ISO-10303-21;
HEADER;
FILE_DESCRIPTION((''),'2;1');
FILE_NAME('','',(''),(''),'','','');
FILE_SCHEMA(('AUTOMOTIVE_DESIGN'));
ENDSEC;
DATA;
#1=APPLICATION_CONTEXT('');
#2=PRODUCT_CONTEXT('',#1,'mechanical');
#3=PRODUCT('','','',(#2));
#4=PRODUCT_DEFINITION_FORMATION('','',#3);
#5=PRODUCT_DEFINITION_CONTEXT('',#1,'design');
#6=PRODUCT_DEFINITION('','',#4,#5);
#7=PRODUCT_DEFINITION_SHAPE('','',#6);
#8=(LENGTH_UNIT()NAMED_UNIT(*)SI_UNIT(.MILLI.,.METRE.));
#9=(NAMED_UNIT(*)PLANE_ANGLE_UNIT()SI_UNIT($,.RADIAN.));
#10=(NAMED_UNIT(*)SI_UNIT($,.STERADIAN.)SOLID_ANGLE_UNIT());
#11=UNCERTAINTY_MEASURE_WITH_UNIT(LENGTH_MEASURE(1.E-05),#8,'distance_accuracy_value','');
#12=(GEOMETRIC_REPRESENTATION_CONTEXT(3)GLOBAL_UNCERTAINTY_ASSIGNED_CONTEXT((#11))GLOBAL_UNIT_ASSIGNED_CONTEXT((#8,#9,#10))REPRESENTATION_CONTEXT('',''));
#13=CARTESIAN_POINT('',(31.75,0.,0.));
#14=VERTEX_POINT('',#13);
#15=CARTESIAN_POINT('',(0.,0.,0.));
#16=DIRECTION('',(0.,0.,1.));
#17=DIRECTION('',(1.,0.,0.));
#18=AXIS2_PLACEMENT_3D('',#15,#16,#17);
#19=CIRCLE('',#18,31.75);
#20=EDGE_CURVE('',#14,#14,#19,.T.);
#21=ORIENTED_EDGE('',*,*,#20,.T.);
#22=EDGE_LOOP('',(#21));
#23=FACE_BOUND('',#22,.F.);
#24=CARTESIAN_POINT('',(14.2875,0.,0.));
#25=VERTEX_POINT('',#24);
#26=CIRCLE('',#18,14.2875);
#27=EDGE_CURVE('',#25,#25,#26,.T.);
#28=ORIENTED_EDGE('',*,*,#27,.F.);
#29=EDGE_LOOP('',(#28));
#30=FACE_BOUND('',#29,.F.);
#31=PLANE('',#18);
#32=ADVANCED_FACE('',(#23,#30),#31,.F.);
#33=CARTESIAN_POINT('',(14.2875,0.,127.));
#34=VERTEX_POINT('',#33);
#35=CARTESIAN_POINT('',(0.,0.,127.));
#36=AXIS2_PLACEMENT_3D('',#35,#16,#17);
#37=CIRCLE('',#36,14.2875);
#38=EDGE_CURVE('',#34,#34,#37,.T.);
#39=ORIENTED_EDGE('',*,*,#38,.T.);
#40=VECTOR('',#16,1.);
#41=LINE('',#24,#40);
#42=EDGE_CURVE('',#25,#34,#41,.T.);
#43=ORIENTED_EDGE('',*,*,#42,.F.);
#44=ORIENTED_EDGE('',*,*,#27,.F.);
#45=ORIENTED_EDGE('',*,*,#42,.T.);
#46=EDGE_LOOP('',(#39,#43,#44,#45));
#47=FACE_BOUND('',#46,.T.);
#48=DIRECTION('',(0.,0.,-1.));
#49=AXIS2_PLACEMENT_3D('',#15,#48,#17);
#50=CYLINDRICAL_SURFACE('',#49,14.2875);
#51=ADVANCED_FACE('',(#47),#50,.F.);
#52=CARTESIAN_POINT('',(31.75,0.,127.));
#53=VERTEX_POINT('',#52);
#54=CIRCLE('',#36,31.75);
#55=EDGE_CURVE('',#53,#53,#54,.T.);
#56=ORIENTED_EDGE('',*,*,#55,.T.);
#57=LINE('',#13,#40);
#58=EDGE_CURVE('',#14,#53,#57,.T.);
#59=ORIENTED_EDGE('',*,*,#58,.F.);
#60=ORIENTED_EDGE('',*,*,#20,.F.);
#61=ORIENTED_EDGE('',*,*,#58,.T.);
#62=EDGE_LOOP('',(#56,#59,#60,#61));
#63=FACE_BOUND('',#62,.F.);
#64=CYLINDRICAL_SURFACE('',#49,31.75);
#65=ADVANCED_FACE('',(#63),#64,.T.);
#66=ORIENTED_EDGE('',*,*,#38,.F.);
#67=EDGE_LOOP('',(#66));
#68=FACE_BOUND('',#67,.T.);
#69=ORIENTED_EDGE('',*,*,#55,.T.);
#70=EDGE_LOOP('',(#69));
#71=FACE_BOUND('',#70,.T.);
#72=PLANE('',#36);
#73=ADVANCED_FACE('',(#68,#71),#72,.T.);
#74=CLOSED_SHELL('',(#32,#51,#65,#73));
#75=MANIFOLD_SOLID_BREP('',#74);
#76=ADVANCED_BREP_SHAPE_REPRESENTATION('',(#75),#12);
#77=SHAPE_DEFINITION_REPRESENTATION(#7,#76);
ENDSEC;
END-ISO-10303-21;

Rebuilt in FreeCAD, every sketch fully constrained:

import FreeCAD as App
import Part
import Sketcher
from FreeCAD import Vector
Q = App.Units.Quantity

doc = App.newDocument("Part")
body = doc.addObject("PartDesign::Body", "Body")

# Sketch on XY plane
sketch1 = body.newObject("Sketcher::SketchObject", "Sketch")
sketch1.AttachmentSupport = (doc.getObject("XY_Plane"), [""])
sketch1.MapMode = "FlatFace"
sketch1.addGeometry([
    Part.Circle(Vector(0, 0, 0), Vector(0, 0, 1), 32),
    Part.Circle(Vector(0, 0, 0), Vector(0, 0, 1), 14),
], False)
sketch1.addConstraint([
    Sketcher.Constraint("Coincident", 0, 3, -1, 1),
    Sketcher.Constraint("Coincident", 1, 3, -1, 1),
    Sketcher.Constraint("Diameter", 0, Q("2.5 in")),
    Sketcher.Constraint("Diameter", 1, Q("1.125 in")),
])
pad1 = body.newObject("PartDesign::Pad", "Pad")
pad1.Profile = sketch1
pad1.Length = Q("5 in")

doc.recompute()
